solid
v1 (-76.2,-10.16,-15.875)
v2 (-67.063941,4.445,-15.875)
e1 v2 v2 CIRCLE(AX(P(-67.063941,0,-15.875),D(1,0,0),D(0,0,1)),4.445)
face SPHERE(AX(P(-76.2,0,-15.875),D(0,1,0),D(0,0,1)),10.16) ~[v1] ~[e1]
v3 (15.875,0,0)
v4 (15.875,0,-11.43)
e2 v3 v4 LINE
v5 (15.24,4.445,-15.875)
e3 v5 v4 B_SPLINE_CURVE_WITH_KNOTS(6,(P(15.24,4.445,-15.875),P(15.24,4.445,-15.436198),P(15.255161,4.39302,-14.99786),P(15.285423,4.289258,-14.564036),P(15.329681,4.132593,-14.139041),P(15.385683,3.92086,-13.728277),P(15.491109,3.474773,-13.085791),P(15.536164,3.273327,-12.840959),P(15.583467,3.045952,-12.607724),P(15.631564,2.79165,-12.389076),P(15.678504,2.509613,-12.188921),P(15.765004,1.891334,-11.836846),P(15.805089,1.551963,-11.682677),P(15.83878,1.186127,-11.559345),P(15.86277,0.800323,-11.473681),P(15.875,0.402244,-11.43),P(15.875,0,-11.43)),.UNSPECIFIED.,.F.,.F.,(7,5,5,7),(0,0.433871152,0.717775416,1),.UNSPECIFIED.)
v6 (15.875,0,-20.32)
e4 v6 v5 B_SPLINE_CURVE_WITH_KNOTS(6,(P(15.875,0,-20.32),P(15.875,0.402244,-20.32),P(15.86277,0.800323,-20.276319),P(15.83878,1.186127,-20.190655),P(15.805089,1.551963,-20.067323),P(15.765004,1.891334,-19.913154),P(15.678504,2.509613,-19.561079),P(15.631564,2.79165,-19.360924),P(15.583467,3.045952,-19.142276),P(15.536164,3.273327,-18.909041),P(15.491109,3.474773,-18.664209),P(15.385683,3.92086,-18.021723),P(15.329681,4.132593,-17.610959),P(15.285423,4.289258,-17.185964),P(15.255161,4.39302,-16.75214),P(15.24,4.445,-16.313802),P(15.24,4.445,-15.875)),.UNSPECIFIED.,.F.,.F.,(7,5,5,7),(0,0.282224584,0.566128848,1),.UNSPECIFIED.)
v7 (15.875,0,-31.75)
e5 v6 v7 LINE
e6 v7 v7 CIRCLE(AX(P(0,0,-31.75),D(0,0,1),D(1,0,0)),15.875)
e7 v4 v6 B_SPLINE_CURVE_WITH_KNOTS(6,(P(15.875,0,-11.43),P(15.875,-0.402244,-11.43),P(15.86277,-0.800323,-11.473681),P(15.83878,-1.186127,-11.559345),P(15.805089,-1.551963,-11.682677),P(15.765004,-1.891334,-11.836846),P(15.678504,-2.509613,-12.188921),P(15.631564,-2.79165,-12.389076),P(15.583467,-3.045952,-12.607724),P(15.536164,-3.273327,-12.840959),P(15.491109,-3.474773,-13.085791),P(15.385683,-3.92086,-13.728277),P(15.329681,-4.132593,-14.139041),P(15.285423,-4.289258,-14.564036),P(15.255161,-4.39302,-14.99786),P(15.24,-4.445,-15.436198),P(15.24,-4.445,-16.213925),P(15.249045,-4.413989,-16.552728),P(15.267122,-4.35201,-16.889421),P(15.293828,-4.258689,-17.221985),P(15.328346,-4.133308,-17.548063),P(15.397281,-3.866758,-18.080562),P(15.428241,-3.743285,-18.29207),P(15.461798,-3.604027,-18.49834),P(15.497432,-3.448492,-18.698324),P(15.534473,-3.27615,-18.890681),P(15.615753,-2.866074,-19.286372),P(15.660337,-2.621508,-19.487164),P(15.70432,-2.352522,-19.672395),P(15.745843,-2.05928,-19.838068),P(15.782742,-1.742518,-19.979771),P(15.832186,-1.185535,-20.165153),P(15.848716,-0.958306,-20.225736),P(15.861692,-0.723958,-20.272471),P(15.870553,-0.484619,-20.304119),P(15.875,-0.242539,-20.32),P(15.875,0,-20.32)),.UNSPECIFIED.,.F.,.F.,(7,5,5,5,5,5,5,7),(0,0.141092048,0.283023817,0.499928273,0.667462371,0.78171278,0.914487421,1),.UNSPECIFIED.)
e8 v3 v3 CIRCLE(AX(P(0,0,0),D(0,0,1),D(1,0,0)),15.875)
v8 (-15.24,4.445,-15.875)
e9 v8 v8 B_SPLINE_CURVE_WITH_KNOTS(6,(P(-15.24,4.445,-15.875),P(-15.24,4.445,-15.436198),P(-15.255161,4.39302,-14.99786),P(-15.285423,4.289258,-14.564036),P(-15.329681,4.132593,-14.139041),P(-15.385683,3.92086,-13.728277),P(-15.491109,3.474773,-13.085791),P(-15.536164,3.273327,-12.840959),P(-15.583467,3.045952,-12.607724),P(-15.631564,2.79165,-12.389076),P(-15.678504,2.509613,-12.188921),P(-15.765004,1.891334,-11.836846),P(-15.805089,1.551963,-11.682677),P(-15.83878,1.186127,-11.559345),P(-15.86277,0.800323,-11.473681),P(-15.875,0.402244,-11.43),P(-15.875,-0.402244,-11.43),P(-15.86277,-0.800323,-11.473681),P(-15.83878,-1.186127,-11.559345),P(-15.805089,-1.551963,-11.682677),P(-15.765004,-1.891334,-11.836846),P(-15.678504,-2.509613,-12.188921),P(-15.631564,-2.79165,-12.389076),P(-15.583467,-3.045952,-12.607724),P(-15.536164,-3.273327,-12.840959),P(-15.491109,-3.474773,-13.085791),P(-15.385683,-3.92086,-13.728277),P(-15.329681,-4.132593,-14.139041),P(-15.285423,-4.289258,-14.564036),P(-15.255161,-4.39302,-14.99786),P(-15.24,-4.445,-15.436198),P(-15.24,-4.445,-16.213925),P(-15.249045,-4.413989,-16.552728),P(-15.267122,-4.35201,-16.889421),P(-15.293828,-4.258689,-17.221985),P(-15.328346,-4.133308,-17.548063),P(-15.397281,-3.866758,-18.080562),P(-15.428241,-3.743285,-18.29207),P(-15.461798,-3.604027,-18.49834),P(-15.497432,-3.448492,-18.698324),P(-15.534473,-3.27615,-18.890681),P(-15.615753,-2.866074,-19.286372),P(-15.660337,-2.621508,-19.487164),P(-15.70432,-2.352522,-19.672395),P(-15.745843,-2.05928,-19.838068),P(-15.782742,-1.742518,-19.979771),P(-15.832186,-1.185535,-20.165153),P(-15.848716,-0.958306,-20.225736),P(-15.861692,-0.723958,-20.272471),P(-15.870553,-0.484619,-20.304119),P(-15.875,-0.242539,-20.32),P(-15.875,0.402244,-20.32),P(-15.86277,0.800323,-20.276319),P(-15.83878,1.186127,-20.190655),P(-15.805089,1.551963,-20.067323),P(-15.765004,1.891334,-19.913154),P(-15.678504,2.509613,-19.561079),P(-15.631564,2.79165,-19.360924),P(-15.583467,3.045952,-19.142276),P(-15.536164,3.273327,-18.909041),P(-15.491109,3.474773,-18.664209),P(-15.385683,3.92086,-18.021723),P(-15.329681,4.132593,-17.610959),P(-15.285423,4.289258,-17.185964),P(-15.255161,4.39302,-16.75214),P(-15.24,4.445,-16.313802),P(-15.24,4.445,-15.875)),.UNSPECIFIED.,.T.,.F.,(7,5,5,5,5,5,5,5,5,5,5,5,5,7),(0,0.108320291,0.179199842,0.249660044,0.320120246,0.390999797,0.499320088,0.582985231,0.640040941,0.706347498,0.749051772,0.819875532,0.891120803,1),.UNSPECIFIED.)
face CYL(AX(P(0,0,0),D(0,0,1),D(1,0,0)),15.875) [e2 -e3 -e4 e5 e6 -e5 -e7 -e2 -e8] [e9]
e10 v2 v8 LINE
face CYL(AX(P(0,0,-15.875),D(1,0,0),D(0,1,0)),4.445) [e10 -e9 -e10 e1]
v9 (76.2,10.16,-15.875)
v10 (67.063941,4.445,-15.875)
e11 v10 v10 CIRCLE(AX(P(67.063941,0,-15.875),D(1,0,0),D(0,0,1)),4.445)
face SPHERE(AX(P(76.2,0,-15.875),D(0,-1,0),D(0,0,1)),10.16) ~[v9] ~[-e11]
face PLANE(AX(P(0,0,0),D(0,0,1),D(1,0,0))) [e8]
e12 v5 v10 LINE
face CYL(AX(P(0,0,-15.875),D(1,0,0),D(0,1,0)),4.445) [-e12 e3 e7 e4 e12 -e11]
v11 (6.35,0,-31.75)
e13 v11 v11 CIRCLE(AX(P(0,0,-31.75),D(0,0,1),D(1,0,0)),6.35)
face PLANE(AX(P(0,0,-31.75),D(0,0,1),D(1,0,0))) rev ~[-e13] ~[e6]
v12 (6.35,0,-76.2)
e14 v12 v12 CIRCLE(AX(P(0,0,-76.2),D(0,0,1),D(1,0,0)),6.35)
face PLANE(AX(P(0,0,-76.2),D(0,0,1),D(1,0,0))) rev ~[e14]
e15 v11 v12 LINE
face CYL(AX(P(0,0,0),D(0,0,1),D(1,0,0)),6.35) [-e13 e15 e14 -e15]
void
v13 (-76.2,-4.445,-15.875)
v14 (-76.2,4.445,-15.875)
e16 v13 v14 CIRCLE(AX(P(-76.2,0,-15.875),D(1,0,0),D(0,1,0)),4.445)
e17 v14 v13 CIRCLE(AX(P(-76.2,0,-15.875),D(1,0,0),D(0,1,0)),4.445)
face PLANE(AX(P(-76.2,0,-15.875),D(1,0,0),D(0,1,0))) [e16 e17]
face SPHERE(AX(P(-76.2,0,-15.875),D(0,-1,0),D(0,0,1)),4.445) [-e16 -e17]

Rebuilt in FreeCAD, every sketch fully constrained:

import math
import FreeCAD as App
import Part
import Sketcher
Q = App.Units.Quantity

doc = App.newDocument("Part")
body = doc.addObject("PartDesign::Body", "Body")

# Sketch on XY plane
sketch1 = doc.addObject("Sketcher::SketchObject", "Sketch")
body.addObject(sketch1)
sketch1.AttachmentSupport = (doc.XY_Plane, [""])
sketch1.MapMode = "FlatFace"
sketch1.addGeometry(Part.Circle(App.Vector(0, 0, 0), App.Vector(0, 0, 1), 16), False)
sketch1.addConstraint([
    Sketcher.Constraint("Coincident", 0, 3, -1, 1),
    Sketcher.Constraint("Diameter", 0, Q("1.25 in")),
])
pad1 = doc.addObject("PartDesign::Pad", "Pad")
body.addObject(pad1)
pad1.Profile = sketch1
pad1.Length = Q("1.25 in")
pad1.Reversed = True

# Sketch on XY plane
sketch2 = doc.addObject("Sketcher::SketchObject", "Sketch001")
body.addObject(sketch2)
sketch2.AttachmentSupport = (doc.XY_Plane, [""])
sketch2.MapMode = "FlatFace"
sketch2.addGeometry(Part.Circle(App.Vector(0, 0, 0), App.Vector(0, 0, 1), 6), False)
sketch2.addConstraint([
    Sketcher.Constraint("Coincident", 0, 3, -1, 1),
    Sketcher.Constraint("Diameter", 0, Q("0.5 in")),
])
pad2 = doc.addObject("PartDesign::Pad", "Pad001")
body.addObject(pad2)
pad2.Profile = sketch2
pad2.Length = Q("3 in")
pad2.Reversed = True

# Sketch on YZ plane
sketch3 = doc.addObject("Sketcher::SketchObject", "Sketch002")
body.addObject(sketch3)
sketch3.AttachmentSupport = (doc.YZ_Plane, [""])
sketch3.MapMode = "FlatFace"
sketch3.addGeometry(Part.Circle(App.Vector(0, -15.9, 0), App.Vector(0, 0, 1), 4.4), False)
sketch3.addConstraint([
    Sketcher.Constraint("PointOnObject", 0, 3, -2),
    Sketcher.Constraint("Diameter", 0, Q("0.35 in")),
    Sketcher.Constraint("DistanceY", 0, 3, -1, 1, Q("0.625 in")),
])
pad3 = doc.addObject("PartDesign::Pad", "Pad002")
body.addObject(pad3)
pad3.Profile = sketch3
pad3.Length = Q("6 in")
pad3.Midplane = True

# Sketch on YZ plane
sketch4 = doc.addObject("Sketcher::SketchObject", "Sketch003")
body.addObject(sketch4)
sketch4.AttachmentSupport = (doc.YZ_Plane, [""])
sketch4.MapMode = "FlatFace"
sketch4.AttachmentOffset = App.Placement(App.Vector(0, 0, 3 * 25.4), App.Rotation())
sketch4.addGeometry([
    Part.LineSegment(App.Vector(-10, -16, 0), App.Vector(10, -16, 0)),
    Part.ArcOfCircle(Part.Circle(App.Vector(0, -16, 0), App.Vector(0, 0, 1), 10), math.radians(0), math.radians(180)),
], False)
sketch4.addGeometry(Part.LineSegment(App.Vector(-10, -16, 0), App.Vector(10, -16, 0)), True)  # axis
sketch4.addConstraint([
    Sketcher.Constraint("Coincident", 0, 1, 1, 2),
    Sketcher.Constraint("Coincident", 1, 1, 0, 2),
    Sketcher.Constraint("Horizontal", 0),
    Sketcher.Constraint("Horizontal", 2),
    Sketcher.Constraint("Coincident", 2, 1, 0, 1),
    Sketcher.Constraint("PointOnObject", 1, 3, -2),
    Sketcher.Constraint("Horizontal", 1, 3, 0, 1),
    Sketcher.Constraint("Equal", 0, 2),
    Sketcher.Constraint("Radius", 1, Q("0.4 in")),
    Sketcher.Constraint("DistanceY", 1, 3, -1, 1, Q("0.625 in")),
])
revolution = doc.addObject("PartDesign::Revolution", "Revolution")
body.addObject(revolution)
revolution.Profile = sketch4
revolution.ReferenceAxis = (sketch4, ["Axis0"])
revolution.Angle = 360

# Sketch on YZ plane
sketch5 = doc.addObject("Sketcher::SketchObject", "Sketch004")
body.addObject(sketch5)
sketch5.AttachmentSupport = (doc.YZ_Plane, [""])
sketch5.MapMode = "FlatFace"
sketch5.AttachmentOffset = App.Placement(App.Vector(0, 0, -3 * 25.4), App.Rotation())
sketch5.addGeometry([
    Part.LineSegment(App.Vector(-4.4, -15.9, 0), App.Vector(-10.2, -15.9, 0)),
    Part.ArcOfCircle(Part.Circle(App.Vector(0, -15.9, 0), App.Vector(0, 0, 1), 10.2), math.radians(0), math.radians(180)),
    Part.LineSegment(App.Vector(10.2, -15.9, 0), App.Vector(4.4, -15.9, 0)),
    Part.ArcOfCircle(Part.Circle(App.Vector(0, -15.9, 0), App.Vector(0, 0, 1), 4.4), math.radians(0), math.radians(180)),
], False)
sketch5.addGeometry(Part.LineSegment(App.Vector(10.2, -15.9, 0), App.Vector(-10.2, -15.9, 0)), True)  # axis
sketch5.addConstraint([
    Sketcher.Constraint("Coincident", 0, 2, 1, 2),
    Sketcher.Constraint("Coincident", 1, 1, 2, 1),
    Sketcher.Constraint("Coincident", 2, 2, 3, 1),
    Sketcher.Constraint("Coincident", 3, 2, 0, 1),
    Sketcher.Constraint("Horizontal", 0),
    Sketcher.Constraint("Horizontal", 2),
    Sketcher.Constraint("Horizontal", 4),
    Sketcher.Constraint("Coincident", 3, 3, 1, 3),
    Sketcher.Constraint("Coincident", 4, 1, 1, 1),
    Sketcher.Constraint("Coincident", 4, 2, 0, 2),
    Sketcher.Constraint("PointOnObject", 1, 3, -2),
    Sketcher.Constraint("Horizontal", 3, 3, 0, 2),
    Sketcher.Constraint("Radius", 1, Q("0.4 in")),
    Sketcher.Constraint("Radius", 3, Q("0.175 in")),
    Sketcher.Constraint("DistanceY", 1, 3, -1, 1, Q("0.625 in")),
])
revolution2 = doc.addObject("PartDesign::Revolution", "Revolution001")
body.addObject(revolution2)
revolution2.Profile = sketch5
revolution2.ReferenceAxis = (sketch5, ["Axis0"])
revolution2.Angle = 360

doc.recompute()
